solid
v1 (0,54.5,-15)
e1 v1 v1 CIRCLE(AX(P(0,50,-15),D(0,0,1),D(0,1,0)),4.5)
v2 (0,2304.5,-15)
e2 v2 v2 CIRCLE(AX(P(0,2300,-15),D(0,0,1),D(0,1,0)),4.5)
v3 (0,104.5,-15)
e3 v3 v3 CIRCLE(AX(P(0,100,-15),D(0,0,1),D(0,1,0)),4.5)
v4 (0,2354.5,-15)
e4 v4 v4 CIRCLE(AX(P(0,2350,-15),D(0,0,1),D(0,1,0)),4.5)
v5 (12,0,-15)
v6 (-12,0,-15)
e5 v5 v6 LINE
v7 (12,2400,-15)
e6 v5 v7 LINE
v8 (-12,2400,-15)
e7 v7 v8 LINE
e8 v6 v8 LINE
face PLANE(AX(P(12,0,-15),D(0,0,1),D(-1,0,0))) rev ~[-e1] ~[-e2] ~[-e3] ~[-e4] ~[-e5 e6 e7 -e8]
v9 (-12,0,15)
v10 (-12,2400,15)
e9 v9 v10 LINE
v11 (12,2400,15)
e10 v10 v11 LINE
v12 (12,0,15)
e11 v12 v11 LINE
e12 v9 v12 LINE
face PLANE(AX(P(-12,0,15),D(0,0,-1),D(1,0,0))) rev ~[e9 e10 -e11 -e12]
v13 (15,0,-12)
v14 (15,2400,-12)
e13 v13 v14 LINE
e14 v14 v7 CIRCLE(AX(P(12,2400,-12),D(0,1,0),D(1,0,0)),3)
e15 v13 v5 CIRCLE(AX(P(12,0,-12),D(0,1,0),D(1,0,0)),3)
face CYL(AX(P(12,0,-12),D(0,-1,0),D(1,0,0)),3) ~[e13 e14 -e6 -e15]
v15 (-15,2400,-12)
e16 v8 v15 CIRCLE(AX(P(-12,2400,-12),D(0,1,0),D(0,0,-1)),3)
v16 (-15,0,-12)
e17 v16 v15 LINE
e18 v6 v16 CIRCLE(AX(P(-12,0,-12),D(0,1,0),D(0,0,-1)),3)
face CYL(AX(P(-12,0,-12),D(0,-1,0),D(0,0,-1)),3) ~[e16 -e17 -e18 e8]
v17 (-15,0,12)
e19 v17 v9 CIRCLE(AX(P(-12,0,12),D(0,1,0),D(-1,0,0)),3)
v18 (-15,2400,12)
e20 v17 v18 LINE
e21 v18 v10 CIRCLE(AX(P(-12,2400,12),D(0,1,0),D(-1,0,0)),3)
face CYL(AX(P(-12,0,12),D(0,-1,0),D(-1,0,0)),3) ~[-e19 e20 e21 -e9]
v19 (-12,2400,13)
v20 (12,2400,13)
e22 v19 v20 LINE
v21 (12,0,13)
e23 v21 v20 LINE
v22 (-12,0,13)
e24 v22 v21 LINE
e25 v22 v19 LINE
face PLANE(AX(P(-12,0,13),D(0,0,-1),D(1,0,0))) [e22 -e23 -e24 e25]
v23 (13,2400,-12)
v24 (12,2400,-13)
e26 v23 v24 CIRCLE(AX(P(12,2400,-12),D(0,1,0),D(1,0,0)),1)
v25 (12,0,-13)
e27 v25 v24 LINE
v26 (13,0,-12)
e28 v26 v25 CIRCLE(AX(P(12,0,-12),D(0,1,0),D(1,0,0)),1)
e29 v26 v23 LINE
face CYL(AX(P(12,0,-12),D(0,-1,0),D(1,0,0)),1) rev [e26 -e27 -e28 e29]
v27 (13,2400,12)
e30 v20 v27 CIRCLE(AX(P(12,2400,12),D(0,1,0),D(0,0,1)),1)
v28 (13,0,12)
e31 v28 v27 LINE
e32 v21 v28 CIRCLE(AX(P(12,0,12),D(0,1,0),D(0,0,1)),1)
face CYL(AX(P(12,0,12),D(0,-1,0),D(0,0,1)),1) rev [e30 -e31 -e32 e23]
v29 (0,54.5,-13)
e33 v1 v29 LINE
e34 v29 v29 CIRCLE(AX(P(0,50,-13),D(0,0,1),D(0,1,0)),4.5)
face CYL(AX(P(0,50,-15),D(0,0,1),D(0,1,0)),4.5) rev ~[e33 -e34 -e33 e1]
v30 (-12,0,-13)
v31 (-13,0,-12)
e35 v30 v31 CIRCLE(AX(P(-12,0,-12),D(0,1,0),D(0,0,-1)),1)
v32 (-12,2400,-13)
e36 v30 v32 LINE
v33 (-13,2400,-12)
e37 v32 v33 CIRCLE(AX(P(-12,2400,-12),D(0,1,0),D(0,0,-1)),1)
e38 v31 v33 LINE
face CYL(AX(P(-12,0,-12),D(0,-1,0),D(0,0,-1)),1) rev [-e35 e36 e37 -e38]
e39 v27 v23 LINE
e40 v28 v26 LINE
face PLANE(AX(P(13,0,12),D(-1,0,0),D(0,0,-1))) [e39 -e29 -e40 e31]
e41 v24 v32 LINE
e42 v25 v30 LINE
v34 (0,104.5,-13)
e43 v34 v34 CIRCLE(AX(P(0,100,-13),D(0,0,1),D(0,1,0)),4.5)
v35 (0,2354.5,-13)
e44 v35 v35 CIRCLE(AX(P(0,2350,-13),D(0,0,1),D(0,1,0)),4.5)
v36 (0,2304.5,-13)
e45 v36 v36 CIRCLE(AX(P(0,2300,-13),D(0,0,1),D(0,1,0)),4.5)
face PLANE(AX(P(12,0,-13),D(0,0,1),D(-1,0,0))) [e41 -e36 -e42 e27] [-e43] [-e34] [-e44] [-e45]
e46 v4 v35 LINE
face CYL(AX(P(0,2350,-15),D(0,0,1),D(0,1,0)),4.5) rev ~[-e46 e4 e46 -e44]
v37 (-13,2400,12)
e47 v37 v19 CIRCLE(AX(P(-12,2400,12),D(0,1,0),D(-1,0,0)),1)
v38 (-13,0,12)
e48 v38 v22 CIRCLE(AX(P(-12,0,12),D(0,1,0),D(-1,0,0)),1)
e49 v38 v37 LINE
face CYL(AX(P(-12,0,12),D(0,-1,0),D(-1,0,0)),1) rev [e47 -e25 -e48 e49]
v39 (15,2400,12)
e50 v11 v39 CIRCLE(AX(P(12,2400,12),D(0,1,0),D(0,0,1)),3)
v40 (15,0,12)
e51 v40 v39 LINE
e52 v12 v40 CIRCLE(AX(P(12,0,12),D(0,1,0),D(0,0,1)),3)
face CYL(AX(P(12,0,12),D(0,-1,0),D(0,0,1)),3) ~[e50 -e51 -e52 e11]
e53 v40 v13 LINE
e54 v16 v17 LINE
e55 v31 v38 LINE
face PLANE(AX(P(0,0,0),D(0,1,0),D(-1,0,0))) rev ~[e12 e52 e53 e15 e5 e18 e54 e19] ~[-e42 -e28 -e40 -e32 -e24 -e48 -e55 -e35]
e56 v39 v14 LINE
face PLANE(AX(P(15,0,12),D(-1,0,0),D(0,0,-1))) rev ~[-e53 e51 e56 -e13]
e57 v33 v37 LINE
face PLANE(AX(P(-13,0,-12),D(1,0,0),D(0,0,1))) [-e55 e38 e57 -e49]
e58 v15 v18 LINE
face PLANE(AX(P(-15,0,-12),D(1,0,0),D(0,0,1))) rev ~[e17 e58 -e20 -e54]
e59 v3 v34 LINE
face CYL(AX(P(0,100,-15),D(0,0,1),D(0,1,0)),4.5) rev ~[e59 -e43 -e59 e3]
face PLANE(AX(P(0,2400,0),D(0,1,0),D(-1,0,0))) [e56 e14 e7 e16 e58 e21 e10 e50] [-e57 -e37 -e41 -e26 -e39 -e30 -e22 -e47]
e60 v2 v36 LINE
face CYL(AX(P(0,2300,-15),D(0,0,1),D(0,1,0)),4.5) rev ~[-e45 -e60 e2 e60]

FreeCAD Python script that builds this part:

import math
import FreeCAD as App
import Part
import Sketcher

doc = App.newDocument("Part")
body = doc.addObject("PartDesign::Body", "Body")

# Sketch on XZ plane
sketch1 = body.newObject("Sketcher::SketchObject", "Sketch")
sketch1.AttachmentSupport = (doc.getObject("XZ_Plane"), [""])
sketch1.MapMode = "FlatFace"
sketch1.addGeometry(Part.ArcOfCircle(Part.Circle(App.Vector(12, -12, 0), App.Vector(0, 0, 1), 3), math.radians(-90), math.radians(0)), False)
sketch1.addGeometry(Part.LineSegment(App.Vector(12, -15, 0), App.Vector(-12, -15, 0)), False)
sketch1.addGeometry(Part.ArcOfCircle(Part.Circle(App.Vector(-12, -12, 0), App.Vector(0, 0, 1), 3), math.radians(180), math.radians(270)), False)
sketch1.addGeometry(Part.LineSegment(App.Vector(-15, -12, 0), App.Vector(-15, 12, 0)), False)
sketch1.addGeometry(Part.ArcOfCircle(Part.Circle(App.Vector(-12, 12, 0), App.Vector(0, 0, 1), 3), math.radians(90), math.radians(180)), False)
sketch1.addGeometry(Part.LineSegment(App.Vector(-12, 15, 0), App.Vector(12, 15, 0)), False)
sketch1.addGeometry(Part.ArcOfCircle(Part.Circle(App.Vector(12, 12, 0), App.Vector(0, 0, 1), 3), math.radians(0), math.radians(90)), False)
sketch1.addGeometry(Part.LineSegment(App.Vector(15, 12, 0), App.Vector(15, -12, 0)), False)
sketch1.addGeometry(Part.LineSegment(App.Vector(-13, 12, 0), App.Vector(-13, -12, 0)), False)
sketch1.addGeometry(Part.ArcOfCircle(Part.Circle(App.Vector(-12, -12, 0), App.Vector(0, 0, 1), 1), math.radians(180), math.radians(270)), False)
sketch1.addGeometry(Part.LineSegment(App.Vector(-12, -13, 0), App.Vector(12, -13, 0)), False)
sketch1.addGeometry(Part.ArcOfCircle(Part.Circle(App.Vector(12, -12, 0), App.Vector(0, 0, 1), 1), math.radians(-90), math.radians(0)), False)
sketch1.addGeometry(Part.LineSegment(App.Vector(13, -12, 0), App.Vector(13, 12, 0)), False)
sketch1.addGeometry(Part.ArcOfCircle(Part.Circle(App.Vector(12, 12, 0), App.Vector(0, 0, 1), 1), math.radians(0), math.radians(90)), False)
sketch1.addGeometry(Part.LineSegment(App.Vector(12, 13, 0), App.Vector(-12, 13, 0)), False)
sketch1.addGeometry(Part.ArcOfCircle(Part.Circle(App.Vector(-12, 12, 0), App.Vector(0, 0, 1), 1), math.radians(90), math.radians(180)), False)
sketch1.addConstraint(Sketcher.Constraint("Tangent", 0, 1, 1, 1))
sketch1.addConstraint(Sketcher.Constraint("Tangent", 1, 2, 2, 2))
sketch1.addConstraint(Sketcher.Constraint("Tangent", 2, 1, 3, 1))
sketch1.addConstraint(Sketcher.Constraint("Tangent", 3, 2, 4, 2))
sketch1.addConstraint(Sketcher.Constraint("Tangent", 4, 1, 5, 1))
sketch1.addConstraint(Sketcher.Constraint("Tangent", 5, 2, 6, 2))
sketch1.addConstraint(Sketcher.Constraint("Tangent", 6, 1, 7, 1))
sketch1.addConstraint(Sketcher.Constraint("Tangent", 7, 2, 0, 2))
sketch1.addConstraint(Sketcher.Constraint("Tangent", 8, 2, 9, 1))
sketch1.addConstraint(Sketcher.Constraint("Tangent", 9, 2, 10, 1))
sketch1.addConstraint(Sketcher.Constraint("Tangent", 10, 2, 11, 1))
sketch1.addConstraint(Sketcher.Constraint("Tangent", 11, 2, 12, 1))
sketch1.addConstraint(Sketcher.Constraint("Tangent", 12, 2, 13, 1))
sketch1.addConstraint(Sketcher.Constraint("Tangent", 13, 2, 14, 1))
sketch1.addConstraint(Sketcher.Constraint("Tangent", 14, 2, 15, 1))
sketch1.addConstraint(Sketcher.Constraint("Tangent", 15, 2, 8, 1))
sketch1.addConstraint(Sketcher.Constraint("Horizontal", 1))
sketch1.addConstraint(Sketcher.Constraint("Vertical", 3))
sketch1.addConstraint(Sketcher.Constraint("Horizontal", 5))
sketch1.addConstraint(Sketcher.Constraint("Vertical", 7))
sketch1.addConstraint(Sketcher.Constraint("Vertical", 8))
sketch1.addConstraint(Sketcher.Constraint("Horizontal", 10))
sketch1.addConstraint(Sketcher.Constraint("Vertical", 12))
sketch1.addConstraint(Sketcher.Constraint("Horizontal", 14))
sketch1.addConstraint(Sketcher.Constraint("Coincident", 9, 3, 2, 3))
sketch1.addConstraint(Sketcher.Constraint("Coincident", 11, 3, 0, 3))
sketch1.addConstraint(Sketcher.Constraint("Coincident", 13, 3, 6, 3))
sketch1.addConstraint(Sketcher.Constraint("Equal", 0, 2))
sketch1.addConstraint(Sketcher.Constraint("Equal", 2, 4))
sketch1.addConstraint(Sketcher.Constraint("Equal", 4, 6))
sketch1.addConstraint(Sketcher.Constraint("Equal", 13, 15))
sketch1.addConstraint(Sketcher.Constraint("Symmetric", 0, 3, 4, 3, -1, 1))
sketch1.addConstraint(Sketcher.Constraint("Equal", 14, 3))
sketch1.addConstraint(Sketcher.Constraint("Radius", 9, 1.0))
sketch1.addConstraint(Sketcher.Constraint("Radius", 0, 3.0))
sketch1.addConstraint(Sketcher.Constraint("DistanceX", 1, 2, 1, 1, 24.0))
pad1 = body.newObject("PartDesign::Pad", "Pad")
pad1.Profile = sketch1
pad1.Length = 2400
pad1.Reversed = True

# Sketch on XY plane
sketch2 = body.newObject("Sketcher::SketchObject", "Sketch001")
sketch2.AttachmentSupport = (doc.getObject("XY_Plane"), [""])
sketch2.MapMode = "FlatFace"
sketch2.AttachmentOffset = App.Placement(App.Vector(0, 0, -15), App.Rotation())
sketch2.addGeometry(Part.Circle(App.Vector(0, 50, 0), App.Vector(0, 0, 1), 4.5), False)
sketch2.addGeometry(Part.Circle(App.Vector(0, 100, 0), App.Vector(0, 0, 1), 4.5), False)
sketch2.addGeometry(Part.Circle(App.Vector(0, 2350, 0), App.Vector(0, 0, 1), 4.5), False)
sketch2.addGeometry(Part.Circle(App.Vector(0, 2300, 0), App.Vector(0, 0, 1), 4.5), False)
sketch2.addConstraint(Sketcher.Constraint("Equal", 0, 1))
sketch2.addConstraint(Sketcher.Constraint("Equal", 1, 2))
sketch2.addConstraint(Sketcher.Constraint("Equal", 2, 3))
sketch2.addConstraint(Sketcher.Constraint("PointOnObject", 0, 3, -2))
sketch2.addConstraint(Sketcher.Constraint("PointOnObject", 1, 3, -2))
sketch2.addConstraint(Sketcher.Constraint("PointOnObject", 2, 3, -2))
sketch2.addConstraint(Sketcher.Constraint("PointOnObject", 3, 3, -2))
sketch2.addConstraint(Sketcher.Constraint("Diameter", 0, 9.0))
sketch2.addConstraint(Sketcher.Constraint("DistanceY", -1, 1, 0, 3, 50.0))
sketch2.addConstraint(Sketcher.Constraint("DistanceY", -1, 1, 1, 3, 100.0))
sketch2.addConstraint(Sketcher.Constraint("DistanceY", -1, 1, 2, 3, 2350.0))
sketch2.addConstraint(Sketcher.Constraint("DistanceY", -1, 1, 3, 3, 2300.0))
doc.recompute()
hole = body.newObject("PartDesign::Hole", "Hole")
hole.Profile = sketch2
hole.ThreadType = "None"
hole.Diameter = 9
hole.DepthType = "Dimension"
hole.Depth = 20.2
hole.DrillPoint = "Angled"
hole.DrillPointAngle = 118
hole.Reversed = True

doc.recompute()
